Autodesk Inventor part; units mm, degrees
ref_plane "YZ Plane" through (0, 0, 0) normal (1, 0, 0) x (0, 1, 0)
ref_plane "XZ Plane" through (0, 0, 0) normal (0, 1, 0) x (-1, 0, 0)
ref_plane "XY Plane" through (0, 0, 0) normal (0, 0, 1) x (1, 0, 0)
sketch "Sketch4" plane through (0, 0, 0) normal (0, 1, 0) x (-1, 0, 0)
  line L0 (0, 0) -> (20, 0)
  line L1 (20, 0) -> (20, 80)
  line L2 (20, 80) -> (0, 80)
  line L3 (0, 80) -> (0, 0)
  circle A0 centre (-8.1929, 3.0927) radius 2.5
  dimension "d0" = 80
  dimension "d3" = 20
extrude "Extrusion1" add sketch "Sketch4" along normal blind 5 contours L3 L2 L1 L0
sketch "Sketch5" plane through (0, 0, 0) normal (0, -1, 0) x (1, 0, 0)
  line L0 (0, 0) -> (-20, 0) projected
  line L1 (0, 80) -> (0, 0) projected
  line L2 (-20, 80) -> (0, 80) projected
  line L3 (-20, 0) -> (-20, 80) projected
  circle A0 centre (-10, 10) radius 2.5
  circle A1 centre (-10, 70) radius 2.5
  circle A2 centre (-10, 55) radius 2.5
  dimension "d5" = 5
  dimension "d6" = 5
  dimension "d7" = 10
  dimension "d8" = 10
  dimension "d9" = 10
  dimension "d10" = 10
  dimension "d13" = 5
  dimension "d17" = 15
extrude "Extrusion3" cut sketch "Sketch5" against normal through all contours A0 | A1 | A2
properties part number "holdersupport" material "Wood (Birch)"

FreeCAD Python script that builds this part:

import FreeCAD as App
import Part
import Sketcher

V = App.Vector
Q = App.Units.Quantity

doc = App.newDocument("Part")
body = doc.addObject("PartDesign::Body", "Body")

sketch1 = body.newObject("Sketcher::SketchObject", "Sketch")
sketch1.AttachmentSupport = (doc.getObject("XZ_Plane"), [""])
sketch1.MapMode = "FlatFace"
sketch1.addGeometry(Part.LineSegment(V(0, 80, 0), V(0, 0, 0)), False)
sketch1.addGeometry(Part.LineSegment(V(0, 0, 0), V(-20, 0, 0)), False)
sketch1.addGeometry(Part.LineSegment(V(-20, 0, 0), V(-20, 80, 0)), False)
sketch1.addGeometry(Part.LineSegment(V(-20, 80, 0), V(0, 80, 0)), False)
sketch1.addConstraint(Sketcher.Constraint("Coincident", 0, 2, 1, 1))
sketch1.addConstraint(Sketcher.Constraint("Coincident", 1, 2, 2, 1))
sketch1.addConstraint(Sketcher.Constraint("Coincident", 2, 2, 3, 1))
sketch1.addConstraint(Sketcher.Constraint("Coincident", 3, 2, 0, 1))
sketch1.addConstraint(Sketcher.Constraint("Vertical", 0))
sketch1.addConstraint(Sketcher.Constraint("Horizontal", 1))
sketch1.addConstraint(Sketcher.Constraint("Vertical", 2))
sketch1.addConstraint(Sketcher.Constraint("Horizontal", 3))
sketch1.addConstraint(Sketcher.Constraint("Coincident", 0, 2, -1, 1))
sketch1.addConstraint(Sketcher.Constraint("DistanceX", 1, 2, 1, 1, Q("20 mm")))
sketch1.addConstraint(Sketcher.Constraint("DistanceY", 0, 2, 0, 1, Q("80 mm")))
pad1 = body.newObject("PartDesign::Pad", "Pad")
pad1.Profile = sketch1
pad1.Length = 5
pad1.Reversed = True

sketch2 = body.newObject("Sketcher::SketchObject", "Sketch001")
sketch2.AttachmentSupport = (doc.getObject("XZ_Plane"), [""])
sketch2.MapMode = "FlatFace"
sketch2.addGeometry(Part.Circle(V(-10, 10, 0), V(0, 0, 1), 2.5), False)
sketch2.addGeometry(Part.Circle(V(-10, 70, 0), V(0, 0, 1), 2.5), False)
sketch2.addGeometry(Part.Circle(V(-10, 55, 0), V(0, 0, 1), 2.5), False)
sketch2.addConstraint(Sketcher.Constraint("Equal", 0, 1))
sketch2.addConstraint(Sketcher.Constraint("Equal", 1, 2))
sketch2.addConstraint(Sketcher.Constraint("Vertical", 0, 3, 1, 3))
sketch2.addConstraint(Sketcher.Constraint("Vertical", 1, 3, 2, 3))
sketch2.addConstraint(Sketcher.Constraint("Diameter", 0, Q("5 mm")))
sketch2.addConstraint(Sketcher.Constraint("DistanceX", 0, 3, -1, 1, Q("10 mm")))
sketch2.addConstraint(Sketcher.Constraint("DistanceY", -1, 1, 0, 3, Q("10 mm")))
sketch2.addConstraint(Sketcher.Constraint("DistanceY", 2, 3, 1, 3, Q("15 mm")))
sketch2.addConstraint(Sketcher.Constraint("DistanceY", -1, 1, 1, 3, Q("70 mm")))
pocket1 = body.newObject("PartDesign::Pocket", "Pocket")
pocket1.Profile = sketch2
pocket1.Type = "ThroughAll"

doc.recompute()
